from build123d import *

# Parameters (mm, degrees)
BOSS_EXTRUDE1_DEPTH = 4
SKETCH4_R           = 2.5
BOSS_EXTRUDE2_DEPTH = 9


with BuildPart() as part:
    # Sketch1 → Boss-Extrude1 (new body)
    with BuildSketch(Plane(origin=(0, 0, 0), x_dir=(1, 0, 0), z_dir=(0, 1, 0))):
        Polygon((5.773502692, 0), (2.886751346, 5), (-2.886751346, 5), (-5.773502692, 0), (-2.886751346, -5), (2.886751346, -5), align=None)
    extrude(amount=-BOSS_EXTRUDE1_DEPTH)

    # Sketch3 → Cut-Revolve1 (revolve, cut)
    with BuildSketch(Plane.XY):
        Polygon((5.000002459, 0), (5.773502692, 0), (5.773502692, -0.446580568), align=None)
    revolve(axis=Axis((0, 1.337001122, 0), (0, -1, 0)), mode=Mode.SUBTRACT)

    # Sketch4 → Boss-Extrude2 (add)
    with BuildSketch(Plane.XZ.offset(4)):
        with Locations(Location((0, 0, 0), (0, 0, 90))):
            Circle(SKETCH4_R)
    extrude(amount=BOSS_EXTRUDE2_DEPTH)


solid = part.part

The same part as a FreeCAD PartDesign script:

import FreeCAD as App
import Part
import Sketcher
from FreeCAD import Vector
Q = App.Units.Quantity


def add_polygon(sketch, points):
    """Adds a closed chain of lines whose ends are joined by coincident constraints."""
    first, n = sketch.GeometryCount, len(points)
    for a, b in zip(points, points[1:] + points[:1]):
        sketch.addGeometry(Part.LineSegment(App.Vector(*a, 0), App.Vector(*b, 0)), False)
    for i in range(n):
        sketch.addConstraint(Sketcher.Constraint("Coincident", first + i, 2, first + (i + 1) % n, 1))

doc = App.newDocument("Part")
body = doc.addObject("PartDesign::Body", "Body")

sketch1 = doc.addObject("Sketcher::SketchObject", "Sketch")
body.addObject(sketch1)
sketch1.AttachmentSupport = (doc.XZ_Plane, [""])
sketch1.MapMode = "FlatFace"
add_polygon(sketch1, [(6, 0), (3, -5), (-3, -5), (-6, 0), (-3, 5), (3, 5)])
sketch1.addConstraint([
    Sketcher.Constraint("Horizontal", 1),
    Sketcher.Constraint("Horizontal", 4),
    Sketcher.Constraint("Symmetric", 0, 2, 3, 2, -1, 1),
    Sketcher.Constraint("Symmetric", 2, 2, 5, 2, -1, 1),
    Sketcher.Constraint("PointOnObject", 2, 2, -1),
    Sketcher.Constraint("Parallel", 2, 5),
    Sketcher.Constraint("Vertical", 1, 2, 3, 2),
    Sketcher.Constraint("Angle", 0, Q("-120 deg")),
    Sketcher.Constraint("DistanceY", 0, 2, -1, 1, Q("5 mm")),
    Sketcher.Constraint("DistanceX", 1, 2, 1, 1, Q("5.773503 mm")),
])
pad1 = doc.addObject("PartDesign::Pad", "Pad")
body.addObject(pad1)
pad1.Profile = sketch1
pad1.Length = 4

sketch2 = doc.addObject("Sketcher::SketchObject", "Sketch001")
body.addObject(sketch2)
sketch2.AttachmentSupport = (doc.XY_Plane, [""])
sketch2.MapMode = "FlatFace"
add_polygon(sketch2, [(5.77, 0), (5, 0), (5.77, -0.45)])
sketch2.addConstraint([
    Sketcher.Constraint("Horizontal", 0),
    Sketcher.Constraint("Vertical", 2),
    Sketcher.Constraint("PointOnObject", 0, 2, -1),
    Sketcher.Constraint("Angle", 1, Q("-30 deg")),
    Sketcher.Constraint("DistanceX", 0, 2, 0, 1, Q("0.7735 mm")),
    Sketcher.Constraint("DistanceX", -1, 1, 0, 2, Q("5.000002 mm")),
])
groove = doc.addObject("PartDesign::Groove", "Groove")
body.addObject(groove)
groove.Profile = sketch2
groove.ReferenceAxis = (sketch2, ["V_Axis"])
groove.Angle = 360

sketch3 = doc.addObject("Sketcher::SketchObject", "Sketch002")
body.addObject(sketch3)
sketch3.AttachmentSupport = (doc.XZ_Plane, [""])
sketch3.MapMode = "FlatFace"
sketch3.AttachmentOffset = App.Placement(Vector(0, 0, 4), App.Rotation())
sketch3.addGeometry(Part.Circle(Vector(0, 0, 0), Vector(0, 0, 1), 2.5), False)
sketch3.addConstraint([
    Sketcher.Constraint("Coincident", 0, 3, -1, 1),
    Sketcher.Constraint("Diameter", 0, Q("5 mm")),
])
pad2 = doc.addObject("PartDesign::Pad", "Pad001")
body.addObject(pad2)
pad2.Profile = sketch3
pad2.Length = 9

doc.recompute()
